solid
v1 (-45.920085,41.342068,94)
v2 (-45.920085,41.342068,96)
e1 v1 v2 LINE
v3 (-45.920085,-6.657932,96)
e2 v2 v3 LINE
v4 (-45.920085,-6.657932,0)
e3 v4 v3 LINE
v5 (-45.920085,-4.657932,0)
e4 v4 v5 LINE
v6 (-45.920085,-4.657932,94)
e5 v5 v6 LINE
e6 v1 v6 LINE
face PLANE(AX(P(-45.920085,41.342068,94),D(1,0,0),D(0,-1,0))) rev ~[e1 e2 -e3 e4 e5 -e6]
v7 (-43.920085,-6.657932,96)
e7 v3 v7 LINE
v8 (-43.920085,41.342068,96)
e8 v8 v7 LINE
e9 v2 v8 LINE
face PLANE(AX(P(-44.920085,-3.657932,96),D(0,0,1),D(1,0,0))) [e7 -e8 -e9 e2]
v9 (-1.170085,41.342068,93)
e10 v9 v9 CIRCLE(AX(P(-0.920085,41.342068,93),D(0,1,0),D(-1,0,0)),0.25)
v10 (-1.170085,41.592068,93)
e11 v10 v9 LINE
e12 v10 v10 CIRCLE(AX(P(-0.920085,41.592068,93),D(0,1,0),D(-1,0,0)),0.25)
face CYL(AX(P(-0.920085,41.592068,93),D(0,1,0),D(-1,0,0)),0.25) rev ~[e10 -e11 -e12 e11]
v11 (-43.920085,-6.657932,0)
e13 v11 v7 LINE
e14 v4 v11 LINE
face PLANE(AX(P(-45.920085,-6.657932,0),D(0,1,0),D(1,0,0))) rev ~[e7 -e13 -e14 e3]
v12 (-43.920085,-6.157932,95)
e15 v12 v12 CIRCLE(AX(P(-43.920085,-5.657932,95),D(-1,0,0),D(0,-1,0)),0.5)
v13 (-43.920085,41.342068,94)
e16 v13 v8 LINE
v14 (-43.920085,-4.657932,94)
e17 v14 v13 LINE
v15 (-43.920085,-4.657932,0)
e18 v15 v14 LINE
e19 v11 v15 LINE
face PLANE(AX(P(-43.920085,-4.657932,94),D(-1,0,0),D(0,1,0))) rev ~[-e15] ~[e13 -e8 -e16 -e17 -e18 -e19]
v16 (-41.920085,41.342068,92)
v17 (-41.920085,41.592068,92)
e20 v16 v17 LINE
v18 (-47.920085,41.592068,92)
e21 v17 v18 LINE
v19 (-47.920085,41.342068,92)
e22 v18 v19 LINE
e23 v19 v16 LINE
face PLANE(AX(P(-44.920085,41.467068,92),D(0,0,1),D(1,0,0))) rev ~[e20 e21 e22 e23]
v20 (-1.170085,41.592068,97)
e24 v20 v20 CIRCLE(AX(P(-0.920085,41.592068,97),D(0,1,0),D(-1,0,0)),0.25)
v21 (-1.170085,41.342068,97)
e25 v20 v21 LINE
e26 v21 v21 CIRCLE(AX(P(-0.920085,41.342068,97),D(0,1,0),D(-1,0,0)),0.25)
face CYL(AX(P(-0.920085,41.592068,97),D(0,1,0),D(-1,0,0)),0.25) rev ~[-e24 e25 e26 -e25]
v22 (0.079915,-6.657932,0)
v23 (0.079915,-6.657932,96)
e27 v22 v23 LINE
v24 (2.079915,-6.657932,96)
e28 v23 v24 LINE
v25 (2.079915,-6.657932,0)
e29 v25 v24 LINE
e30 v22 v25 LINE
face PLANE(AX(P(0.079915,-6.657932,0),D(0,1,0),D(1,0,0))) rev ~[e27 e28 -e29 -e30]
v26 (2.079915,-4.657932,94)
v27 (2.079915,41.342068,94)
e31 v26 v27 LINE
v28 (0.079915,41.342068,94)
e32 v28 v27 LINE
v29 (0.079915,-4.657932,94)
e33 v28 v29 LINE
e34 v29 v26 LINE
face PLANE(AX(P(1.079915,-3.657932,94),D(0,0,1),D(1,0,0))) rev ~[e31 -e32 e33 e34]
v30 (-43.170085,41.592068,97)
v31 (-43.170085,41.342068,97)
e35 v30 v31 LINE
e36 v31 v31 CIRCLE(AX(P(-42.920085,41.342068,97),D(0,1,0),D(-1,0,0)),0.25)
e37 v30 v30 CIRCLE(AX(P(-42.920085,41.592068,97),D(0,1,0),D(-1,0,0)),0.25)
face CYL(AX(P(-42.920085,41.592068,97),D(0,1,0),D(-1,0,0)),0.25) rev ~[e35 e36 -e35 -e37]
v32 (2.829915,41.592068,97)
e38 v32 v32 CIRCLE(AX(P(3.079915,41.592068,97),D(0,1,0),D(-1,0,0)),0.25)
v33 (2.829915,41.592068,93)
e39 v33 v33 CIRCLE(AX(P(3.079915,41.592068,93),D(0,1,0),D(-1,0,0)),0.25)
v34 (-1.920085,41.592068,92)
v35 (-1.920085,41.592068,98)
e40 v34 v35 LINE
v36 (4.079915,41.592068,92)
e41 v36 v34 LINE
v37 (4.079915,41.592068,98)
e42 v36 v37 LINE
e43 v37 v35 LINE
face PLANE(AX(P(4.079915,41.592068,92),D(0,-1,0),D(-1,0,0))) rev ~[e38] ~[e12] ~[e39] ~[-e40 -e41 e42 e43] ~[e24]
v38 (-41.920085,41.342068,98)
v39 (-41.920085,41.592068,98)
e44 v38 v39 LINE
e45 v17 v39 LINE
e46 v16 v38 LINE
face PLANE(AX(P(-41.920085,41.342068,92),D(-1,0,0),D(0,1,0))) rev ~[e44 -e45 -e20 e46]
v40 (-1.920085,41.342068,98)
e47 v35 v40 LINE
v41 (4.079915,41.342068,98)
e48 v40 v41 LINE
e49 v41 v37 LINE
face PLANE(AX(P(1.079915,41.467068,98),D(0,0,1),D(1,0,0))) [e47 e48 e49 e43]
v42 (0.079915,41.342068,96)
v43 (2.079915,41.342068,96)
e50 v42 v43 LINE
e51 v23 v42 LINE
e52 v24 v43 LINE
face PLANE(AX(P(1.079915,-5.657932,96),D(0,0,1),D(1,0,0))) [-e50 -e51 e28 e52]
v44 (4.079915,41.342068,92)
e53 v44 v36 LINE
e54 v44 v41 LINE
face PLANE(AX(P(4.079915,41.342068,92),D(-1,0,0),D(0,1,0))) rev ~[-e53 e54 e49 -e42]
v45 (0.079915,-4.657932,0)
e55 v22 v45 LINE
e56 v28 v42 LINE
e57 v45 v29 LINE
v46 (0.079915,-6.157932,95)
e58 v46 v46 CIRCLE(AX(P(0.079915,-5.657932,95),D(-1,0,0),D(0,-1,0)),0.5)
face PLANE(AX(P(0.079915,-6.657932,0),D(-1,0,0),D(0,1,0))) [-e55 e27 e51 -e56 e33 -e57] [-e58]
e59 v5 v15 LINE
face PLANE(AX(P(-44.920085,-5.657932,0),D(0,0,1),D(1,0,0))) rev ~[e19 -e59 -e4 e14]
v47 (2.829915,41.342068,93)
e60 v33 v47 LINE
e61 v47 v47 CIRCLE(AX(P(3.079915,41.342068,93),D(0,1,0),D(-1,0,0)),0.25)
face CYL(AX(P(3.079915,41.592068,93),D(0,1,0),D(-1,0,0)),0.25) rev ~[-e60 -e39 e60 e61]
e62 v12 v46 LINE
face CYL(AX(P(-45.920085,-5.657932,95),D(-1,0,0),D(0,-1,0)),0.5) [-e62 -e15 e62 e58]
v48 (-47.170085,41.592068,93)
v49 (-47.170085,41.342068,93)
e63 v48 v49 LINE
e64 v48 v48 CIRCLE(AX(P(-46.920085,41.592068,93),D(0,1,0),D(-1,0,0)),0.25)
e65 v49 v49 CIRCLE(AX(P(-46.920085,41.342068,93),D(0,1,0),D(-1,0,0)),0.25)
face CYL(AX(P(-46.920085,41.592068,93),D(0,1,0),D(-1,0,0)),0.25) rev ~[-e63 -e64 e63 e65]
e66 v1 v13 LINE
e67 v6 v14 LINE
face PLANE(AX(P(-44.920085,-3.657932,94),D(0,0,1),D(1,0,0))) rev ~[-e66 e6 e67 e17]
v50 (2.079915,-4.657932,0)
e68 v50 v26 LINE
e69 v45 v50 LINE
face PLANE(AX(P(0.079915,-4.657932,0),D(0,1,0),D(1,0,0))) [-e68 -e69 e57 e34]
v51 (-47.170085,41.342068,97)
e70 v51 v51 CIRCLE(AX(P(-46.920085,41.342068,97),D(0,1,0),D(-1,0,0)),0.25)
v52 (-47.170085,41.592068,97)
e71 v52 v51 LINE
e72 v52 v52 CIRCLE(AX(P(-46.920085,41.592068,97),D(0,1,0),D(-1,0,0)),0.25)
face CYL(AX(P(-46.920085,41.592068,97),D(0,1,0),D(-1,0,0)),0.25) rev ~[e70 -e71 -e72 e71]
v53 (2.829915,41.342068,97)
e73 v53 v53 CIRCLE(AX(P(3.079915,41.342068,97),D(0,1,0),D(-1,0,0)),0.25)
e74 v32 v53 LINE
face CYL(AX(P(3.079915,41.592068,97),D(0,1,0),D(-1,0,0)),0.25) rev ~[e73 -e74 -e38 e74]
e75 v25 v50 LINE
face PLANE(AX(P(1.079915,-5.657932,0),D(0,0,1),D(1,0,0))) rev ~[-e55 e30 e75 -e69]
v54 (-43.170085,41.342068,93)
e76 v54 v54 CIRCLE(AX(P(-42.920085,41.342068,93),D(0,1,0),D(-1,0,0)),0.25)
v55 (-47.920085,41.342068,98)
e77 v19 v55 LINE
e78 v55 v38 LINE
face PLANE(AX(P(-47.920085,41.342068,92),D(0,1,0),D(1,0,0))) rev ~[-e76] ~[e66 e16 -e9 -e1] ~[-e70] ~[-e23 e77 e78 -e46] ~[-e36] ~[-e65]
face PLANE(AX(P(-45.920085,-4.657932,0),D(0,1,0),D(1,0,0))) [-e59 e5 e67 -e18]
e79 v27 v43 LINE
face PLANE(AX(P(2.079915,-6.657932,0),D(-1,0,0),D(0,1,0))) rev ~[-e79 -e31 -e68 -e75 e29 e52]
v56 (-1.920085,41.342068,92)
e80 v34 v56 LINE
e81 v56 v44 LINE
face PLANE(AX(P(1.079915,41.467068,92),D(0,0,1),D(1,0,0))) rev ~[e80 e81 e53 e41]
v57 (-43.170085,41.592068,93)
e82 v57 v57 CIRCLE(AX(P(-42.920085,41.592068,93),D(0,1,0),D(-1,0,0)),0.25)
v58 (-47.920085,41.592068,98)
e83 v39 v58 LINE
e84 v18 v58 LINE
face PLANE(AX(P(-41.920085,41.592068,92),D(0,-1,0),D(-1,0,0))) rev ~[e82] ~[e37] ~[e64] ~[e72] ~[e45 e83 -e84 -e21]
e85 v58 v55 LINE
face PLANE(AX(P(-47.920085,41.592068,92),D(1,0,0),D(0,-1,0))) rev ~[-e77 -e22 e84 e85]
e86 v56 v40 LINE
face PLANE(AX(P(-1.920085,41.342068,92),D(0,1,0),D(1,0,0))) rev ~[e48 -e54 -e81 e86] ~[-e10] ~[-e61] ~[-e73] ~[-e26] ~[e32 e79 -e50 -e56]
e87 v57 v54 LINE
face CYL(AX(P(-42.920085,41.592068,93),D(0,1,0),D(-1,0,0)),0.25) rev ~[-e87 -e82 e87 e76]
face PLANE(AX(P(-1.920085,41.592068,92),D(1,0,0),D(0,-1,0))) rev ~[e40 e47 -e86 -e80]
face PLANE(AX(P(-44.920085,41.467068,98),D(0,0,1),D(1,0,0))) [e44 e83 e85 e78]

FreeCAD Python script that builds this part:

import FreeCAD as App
import Part
import Sketcher

V = App.Vector


def add_polygon(sketch, points):
    """Adds a closed chain of lines whose ends are joined by coincident constraints."""
    first, n = sketch.GeometryCount, len(points)
    for a, b in zip(points, points[1:] + points[:1]):
        sketch.addGeometry(Part.LineSegment(App.Vector(*a, 0), App.Vector(*b, 0)), False)
    for i in range(n):
        sketch.addConstraint(Sketcher.Constraint("Coincident", first + i, 2, first + (i + 1) % n, 1))

doc = App.newDocument("Part")
params = doc.addObject("Spreadsheet::Sheet", "Params")
for row, (alias, value) in enumerate([
    ("sketch1_width", "2 mm"),
    ("pad1_length", "96 mm"),
    ("sketch2_width", "2 mm"),
    ("pad2_length", "96 mm"),
    ("sketch3_diameter", "1 mm"),
    ("pad3_length", "48 mm"),
    ("sketch4_width", "6 mm"),
    ("sketch4_height", "0.25 mm"),
    ("pad4_length", "6 mm"),
    ("sketch5_width", "6 mm"),
    ("sketch5_height", "0.25 mm"),
    ("pad5_length", "6 mm"),
    ("sketch6_width", "2 mm"),
    ("sketch6_height", "46 mm"),
    ("pad6_length", "2 mm"),
    ("sketch7_diameter", "0.5 mm"),
    ("pocket1_length", "0.5 mm"),
    ("sketch8_diameter", "0.5 mm"),
    ("pocket2_length", "0.5 mm"),
], start=1):
    params.set(f"A{row}", alias)
    params.set(f"B{row}", "=" + value)
    params.setAlias(f"B{row}", alias)

body = doc.addObject("PartDesign::Body", "Body")

# Sketch on XY plane
sketch1 = body.newObject("Sketcher::SketchObject", "Sketch")
sketch1.AttachmentSupport = (doc.getObject("XY_Plane"), [""])
sketch1.MapMode = "FlatFace"
add_polygon(sketch1, [(-45.9, -4.7), (-45.9, -6.7), (-43.9, -6.7), (-43.9, -4.7)])  # lines 0-3
sketch1.addConstraint([
    Sketcher.Constraint("Vertical", 0),
    Sketcher.Constraint("Horizontal", 1),
    Sketcher.Constraint("Vertical", 2),
    Sketcher.Constraint("Horizontal", 3),
    Sketcher.Constraint("Equal", 3, 0),
    Sketcher.Constraint("DistanceX", 1, 1, 1, 2, 2.0),
    Sketcher.Constraint("DistanceY", 0, 2, -1, 1, 6.657932),
    Sketcher.Constraint("DistanceX", 0, 2, -1, 1, 45.920085),
])
sketch1.setExpression("Constraints[9]", "Params.sketch1_width")
pad1 = body.newObject("PartDesign::Pad", "Pad")
pad1.Profile = sketch1
pad1.setExpression("Length", "Params.pad1_length")
body2 = doc.addObject("PartDesign::Body", "Body001")

# Sketch on XY plane
sketch2 = body2.newObject("Sketcher::SketchObject", "Sketch001")
sketch2.AttachmentSupport = (doc.getObject("XY_Plane001"), [""])
sketch2.MapMode = "FlatFace"
add_polygon(sketch2, [(0.1, -4.7), (0.1, -6.7), (2.1, -6.7), (2.1, -4.7)])  # lines 0-3
sketch2.addConstraint([
    Sketcher.Constraint("Vertical", 0),
    Sketcher.Constraint("Horizontal", 1),
    Sketcher.Constraint("Vertical", 2),
    Sketcher.Constraint("Horizontal", 3),
    Sketcher.Constraint("Equal", 3, 0),
    Sketcher.Constraint("DistanceX", 1, 1, 1, 2, 2.0),
    Sketcher.Constraint("DistanceY", 0, 2, -1, 1, 6.657932),
    Sketcher.Constraint("DistanceX", -1, 1, 0, 2, 0.079915),
])
sketch2.setExpression("Constraints[9]", "Params.sketch2_width")
pad2 = body2.newObject("PartDesign::Pad", "Pad001")
pad2.Profile = sketch2
pad2.setExpression("Length", "Params.pad2_length")
body.AllowCompound = True
doc.recompute()

boolean = body.newObject("PartDesign::Boolean", "Boolean")
boolean.Type = "Fuse"
boolean.addObjects([body2])

# Sketch on YZ plane
sketch3 = body.newObject("Sketcher::SketchObject", "Sketch002")
sketch3.AttachmentSupport = (doc.getObject("YZ_Plane"), [""])
sketch3.MapMode = "FlatFace"
sketch3.AttachmentOffset = App.Placement(V(0, 0, -45.920085), App.Rotation())
sketch3.addGeometry(Part.Circle(V(-5.7, 95, 0), V(0, 0, 1), 0.5), False)
sketch3.addConstraint([
    Sketcher.Constraint("Diameter", 0, 1.0),
    Sketcher.Constraint("DistanceY", -1, 1, 0, 3, 95.0),
    Sketcher.Constraint("DistanceX", 0, 3, -1, 1, 5.657932),
])
sketch3.setExpression("Constraints[0]", "Params.sketch3_diameter")
pad3 = body.newObject("PartDesign::Pad", "Pad002")
pad3.Profile = sketch3
pad3.setExpression("Length", "Params.pad3_length")
body3 = doc.addObject("PartDesign::Body", "Body002")

# Sketch on XY plane
sketch4 = body3.newObject("Sketcher::SketchObject", "Sketch003")
sketch4.AttachmentSupport = (doc.getObject("XY_Plane002"), [""])
sketch4.MapMode = "FlatFace"
sketch4.AttachmentOffset = App.Placement(V(0, 0, 92), App.Rotation())
add_polygon(sketch4, [(-1.92, 41.34), (4.08, 41.34), (4.08, 41.59), (-1.92, 41.59)])  # lines 0-3
sketch4.addConstraint([
    Sketcher.Constraint("Horizontal", 0),
    Sketcher.Constraint("Vertical", 1),
    Sketcher.Constraint("Horizontal", 2),
    Sketcher.Constraint("Vertical", 3),
    Sketcher.Constraint("DistanceX", 0, 1, 0, 2, 6.0),
    Sketcher.Constraint("DistanceY", 1, 1, 1, 2, 0.25),
    Sketcher.Constraint("DistanceY", -1, 1, 0, 2, 41.342068),
    Sketcher.Constraint("DistanceX", -1, 1, 0, 2, 4.079915),
])
sketch4.setExpression("Constraints[8]", "Params.sketch4_width")
sketch4.setExpression("Constraints[9]", "Params.sketch4_height")
pad4 = body3.newObject("PartDesign::Pad", "Pad003")
pad4.Profile = sketch4
pad4.setExpression("Length", "Params.pad4_length")
body4 = doc.addObject("PartDesign::Body", "Body003")

# Sketch on XY plane
sketch5 = body4.newObject("Sketcher::SketchObject", "Sketch004")
sketch5.AttachmentSupport = (doc.getObject("XY_Plane003"), [""])
sketch5.MapMode = "FlatFace"
sketch5.AttachmentOffset = App.Placement(V(0, 0, 92), App.Rotation())
add_polygon(sketch5, [(-47.92, 41.34), (-41.92, 41.34), (-41.92, 41.59), (-47.92, 41.59)])  # lines 0-3
sketch5.addConstraint([
    Sketcher.Constraint("Horizontal", 0),
    Sketcher.Constraint("Vertical", 1),
    Sketcher.Constraint("Horizontal", 2),
    Sketcher.Constraint("Vertical", 3),
    Sketcher.Constraint("DistanceX", 0, 1, 0, 2, 6.0),
    Sketcher.Constraint("DistanceY", 1, 1, 1, 2, 0.25),
    Sketcher.Constraint("DistanceY", -1, 1, 0, 2, 41.342068),
    Sketcher.Constraint("DistanceX", 0, 2, -1, 1, 41.920085),
])
sketch5.setExpression("Constraints[8]", "Params.sketch5_width")
sketch5.setExpression("Constraints[9]", "Params.sketch5_height")
pad5 = body4.newObject("PartDesign::Pad", "Pad004")
pad5.Profile = sketch5
pad5.setExpression("Length", "Params.pad5_length")
body.AllowCompound = True
doc.recompute()

boolean2 = body.newObject("PartDesign::Boolean", "Boolean001")
boolean2.Type = "Fuse"
boolean2.addObjects([body3])
doc.recompute()

boolean3 = body.newObject("PartDesign::Boolean", "Boolean002")
boolean3.Type = "Fuse"
boolean3.addObjects([body4])

# Sketch on XY plane
sketch6 = body.newObject("Sketcher::SketchObject", "Sketch005")
sketch6.AttachmentSupport = (doc.getObject("XY_Plane"), [""])
sketch6.MapMode = "FlatFace"
sketch6.AttachmentOffset = App.Placement(V(0, 0, 94), App.Rotation())
add_polygon(sketch6, [(-45.9, -4.7), (-43.9, -4.7), (-43.9, 41.3), (-45.9, 41.3)])  # lines 0-3
add_polygon(sketch6, [(0.1, -4.7), (2.1, -4.7), (2.1, 41.3), (0.1, 41.3)])  # lines 4-7
sketch6.addConstraint([
    Sketcher.Constraint("Horizontal", 0),
    Sketcher.Constraint("Vertical", 1),
    Sketcher.Constraint("Horizontal", 2),
    Sketcher.Constraint("Vertical", 3),
    Sketcher.Constraint("Horizontal", 4),
    Sketcher.Constraint("Vertical", 5),
    Sketcher.Constraint("Horizontal", 6),
    Sketcher.Constraint("Vertical", 7),
    Sketcher.Constraint("Horizontal", 3, 2, 4, 2),
    Sketcher.Constraint("Horizontal", 2, 2, 5, 2),
    Sketcher.Constraint("Equal", 2, 4),
    Sketcher.Constraint("DistanceX", 0, 1, 0, 2, 2.0),
    Sketcher.Constraint("DistanceY", 1, 1, 1, 2, 46.0),
    Sketcher.Constraint("DistanceX", 0, 2, 4, 2, 46.0),
    Sketcher.Constraint("DistanceY", 0, 2, -1, 1, 4.657932),
    Sketcher.Constraint("DistanceX", 0, 2, -1, 1, 43.920085),
])
sketch6.setExpression("Constraints[19]", "Params.sketch6_width")
sketch6.setExpression("Constraints[20]", "Params.sketch6_height")
pad6 = body.newObject("PartDesign::Pad", "Pad005")
pad6.Profile = sketch6
pad6.setExpression("Length", "Params.pad6_length")

# Sketch on XZ plane
sketch7 = body.newObject("Sketcher::SketchObject", "Sketch006")
sketch7.AttachmentSupport = (doc.getObject("XZ_Plane"), [""])
sketch7.MapMode = "FlatFace"
sketch7.AttachmentOffset = App.Placement(V(0, 0, -41.592068), App.Rotation())
sketch7.addGeometry([
    Part.Circle(V(-46.92, 97, 0), V(0, 0, 1), 0.25),
    Part.Circle(V(-42.92, 97, 0), V(0, 0, 1), 0.25),
    Part.Circle(V(-42.92, 93, 0), V(0, 0, 1), 0.25),
    Part.Circle(V(-46.92, 93, 0), V(0, 0, 1), 0.25),
], False)
sketch7.addConstraint([
    Sketcher.Constraint("Equal", 0, 1),
    Sketcher.Constraint("Equal", 1, 2),
    Sketcher.Constraint("Equal", 2, 3),
    Sketcher.Constraint("Horizontal", 0, 3, 1, 3),
    Sketcher.Constraint("Horizontal", 2, 3, 3, 3),
    Sketcher.Constraint("Vertical", 1, 3, 2, 3),
    Sketcher.Constraint("Vertical", 0, 3, 3, 3),
    Sketcher.Constraint("Diameter", 0, 0.5),
    Sketcher.Constraint("DistanceY", -1, 1, 0, 3, 97.0),
    Sketcher.Constraint("DistanceY", -1, 1, 2, 3, 93.0),
    Sketcher.Constraint("DistanceX", 0, 3, 1, 3, 4.0),
    Sketcher.Constraint("DistanceX", 0, 3, -1, 1, 46.920085),
])
sketch7.setExpression("Constraints[7]", "Params.sketch7_diameter")
pocket1 = body.newObject("PartDesign::Pocket", "Pocket")
pocket1.Profile = sketch7
pocket1.setExpression("Length", "Params.pocket1_length")
pocket1.Reversed = True

# Sketch on XZ plane
sketch8 = body.newObject("Sketcher::SketchObject", "Sketch007")
sketch8.AttachmentSupport = (doc.getObject("XZ_Plane"), [""])
sketch8.MapMode = "FlatFace"
sketch8.AttachmentOffset = App.Placement(V(0, 0, -41.592068), App.Rotation())
sketch8.addGeometry([
    Part.Circle(V(3.08, 97, 0), V(0, 0, 1), 0.25),
    Part.Circle(V(-0.92, 97, 0), V(0, 0, 1), 0.25),
    Part.Circle(V(-0.92, 93, 0), V(0, 0, 1), 0.25),
    Part.Circle(V(3.08, 93, 0), V(0, 0, 1), 0.25),
], False)
sketch8.addConstraint([
    Sketcher.Constraint("Equal", 0, 1),
    Sketcher.Constraint("Equal", 1, 2),
    Sketcher.Constraint("Equal", 2, 3),
    Sketcher.Constraint("Horizontal", 0, 3, 1, 3),
    Sketcher.Constraint("Horizontal", 2, 3, 3, 3),
    Sketcher.Constraint("Vertical", 1, 3, 2, 3),
    Sketcher.Constraint("Vertical", 0, 3, 3, 3),
    Sketcher.Constraint("Diameter", 0, 0.5),
    Sketcher.Constraint("DistanceY", -1, 1, 0, 3, 97.0),
    Sketcher.Constraint("DistanceY", -1, 1, 2, 3, 93.0),
    Sketcher.Constraint("DistanceX", 1, 3, 0, 3, 4.0),
    Sketcher.Constraint("DistanceX", -1, 1, 0, 3, 3.079915),
])
sketch8.setExpression("Constraints[7]", "Params.sketch8_diameter")
pocket2 = body.newObject("PartDesign::Pocket", "Pocket001")
pocket2.Profile = sketch8
pocket2.setExpression("Length", "Params.pocket2_length")
pocket2.Reversed = True

doc.recompute()
